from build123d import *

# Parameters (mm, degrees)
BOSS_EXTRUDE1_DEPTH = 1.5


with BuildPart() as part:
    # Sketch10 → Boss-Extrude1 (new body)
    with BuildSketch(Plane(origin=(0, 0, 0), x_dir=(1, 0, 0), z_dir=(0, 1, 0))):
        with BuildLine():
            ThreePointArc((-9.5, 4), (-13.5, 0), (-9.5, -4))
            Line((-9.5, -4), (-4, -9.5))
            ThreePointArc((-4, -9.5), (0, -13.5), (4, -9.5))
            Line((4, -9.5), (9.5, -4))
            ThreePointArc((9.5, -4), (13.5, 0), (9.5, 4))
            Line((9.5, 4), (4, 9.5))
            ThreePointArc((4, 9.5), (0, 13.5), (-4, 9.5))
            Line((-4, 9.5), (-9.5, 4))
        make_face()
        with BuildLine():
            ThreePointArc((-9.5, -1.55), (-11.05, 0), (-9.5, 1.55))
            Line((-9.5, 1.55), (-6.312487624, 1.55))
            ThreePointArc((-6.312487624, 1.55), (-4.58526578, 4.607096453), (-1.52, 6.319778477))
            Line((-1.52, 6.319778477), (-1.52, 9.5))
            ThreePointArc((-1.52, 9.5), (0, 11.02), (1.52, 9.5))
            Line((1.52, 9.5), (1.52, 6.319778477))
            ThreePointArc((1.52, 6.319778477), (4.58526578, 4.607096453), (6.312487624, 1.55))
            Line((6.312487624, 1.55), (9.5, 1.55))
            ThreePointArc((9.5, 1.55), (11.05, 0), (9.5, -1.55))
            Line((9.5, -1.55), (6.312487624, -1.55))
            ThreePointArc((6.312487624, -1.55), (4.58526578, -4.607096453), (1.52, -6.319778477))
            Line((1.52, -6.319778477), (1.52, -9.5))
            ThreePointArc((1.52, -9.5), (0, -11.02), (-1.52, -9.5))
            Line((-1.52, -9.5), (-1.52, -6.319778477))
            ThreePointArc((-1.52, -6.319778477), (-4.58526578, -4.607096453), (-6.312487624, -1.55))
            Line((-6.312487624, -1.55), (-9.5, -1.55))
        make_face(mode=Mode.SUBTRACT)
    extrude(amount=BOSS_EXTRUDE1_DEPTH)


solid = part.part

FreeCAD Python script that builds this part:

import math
import FreeCAD as App
import Part
import Sketcher
Q = App.Units.Quantity

doc = App.newDocument("Part")
body = doc.addObject("PartDesign::Body", "Body")

sketch1 = body.newObject("Sketcher::SketchObject", "Sketch")
sketch1.AttachmentSupport = (doc.getObject("XZ_Plane"), [""])
sketch1.MapMode = "FlatFace"
sketch1.addGeometry([
    Part.ArcOfCircle(Part.Circle(App.Vector(-9.5, 0, 0), App.Vector(0, 0, 1), 4), math.radians(90), math.radians(270)),
    Part.LineSegment(App.Vector(-9.5, 4, 0), App.Vector(-4, 9.5, 0)),
    Part.ArcOfCircle(Part.Circle(App.Vector(0, 9.5, 0), App.Vector(0, 0, 1), 4), math.radians(0), math.radians(180)),
    Part.LineSegment(App.Vector(4, 9.5, 0), App.Vector(9.5, 4, 0)),
    Part.ArcOfCircle(Part.Circle(App.Vector(9.5, 0, 0), App.Vector(0, 0, 1), 4), math.radians(-90), math.radians(90)),
    Part.LineSegment(App.Vector(9.5, -4, 0), App.Vector(4, -9.5, 0)),
    Part.ArcOfCircle(Part.Circle(App.Vector(0, -9.5, 0), App.Vector(0, 0, 1), 4), math.radians(180), math.radians(360)),
    Part.LineSegment(App.Vector(-4, -9.5, 0), App.Vector(-9.5, -4, 0)),
    Part.LineSegment(App.Vector(-6.3, 1.6, 0), App.Vector(-9.5, 1.6, 0)),
    Part.ArcOfCircle(Part.Circle(App.Vector(-9.5, 0, 0), App.Vector(0, 0, 1), 1.6), math.radians(90), math.radians(270)),
    Part.LineSegment(App.Vector(-9.5, -1.6, 0), App.Vector(-6.3, -1.6, 0)),
    Part.ArcOfCircle(Part.Circle(App.Vector(0, 0, 0), App.Vector(0, 0, 1), 6.5), math.radians(-166), math.radians(-104)),
    Part.LineSegment(App.Vector(-1.5, -6.3, 0), App.Vector(-1.5, -9.5, 0)),
    Part.ArcOfCircle(Part.Circle(App.Vector(0, -9.5, 0), App.Vector(0, 0, 1), 1.5), math.radians(180), math.radians(360)),
    Part.LineSegment(App.Vector(1.5, -9.5, 0), App.Vector(1.5, -6.3, 0)),
    Part.ArcOfCircle(Part.Circle(App.Vector(0, 0, 0), App.Vector(0, 0, 1), 6.5), math.radians(-76), math.radians(-14)),
    Part.LineSegment(App.Vector(6.3, -1.6, 0), App.Vector(9.5, -1.6, 0)),
    Part.ArcOfCircle(Part.Circle(App.Vector(9.5, 0, 0), App.Vector(0, 0, 1), 1.6), math.radians(-90), math.radians(90)),
    Part.LineSegment(App.Vector(9.5, 1.6, 0), App.Vector(6.3, 1.6, 0)),
    Part.ArcOfCircle(Part.Circle(App.Vector(0, 0, 0), App.Vector(0, 0, 1), 6.5), math.radians(14), math.radians(76)),
    Part.LineSegment(App.Vector(1.5, 6.3, 0), App.Vector(1.5, 9.5, 0)),
    Part.ArcOfCircle(Part.Circle(App.Vector(0, 9.5, 0), App.Vector(0, 0, 1), 1.5), math.radians(0), math.radians(180)),
    Part.LineSegment(App.Vector(-1.5, 9.5, 0), App.Vector(-1.5, 6.3, 0)),
    Part.ArcOfCircle(Part.Circle(App.Vector(0, 0, 0), App.Vector(0, 0, 1), 6.5), math.radians(104), math.radians(166)),
], False)
sketch1.addConstraint([
    Sketcher.Constraint("Coincident", 0, 1, 1, 1),
    Sketcher.Constraint("Coincident", 1, 2, 2, 2),
    Sketcher.Constraint("Coincident", 2, 1, 3, 1),
    Sketcher.Constraint("Coincident", 3, 2, 4, 2),
    Sketcher.Constraint("Coincident", 4, 1, 5, 1),
    Sketcher.Constraint("Coincident", 5, 2, 6, 2),
    Sketcher.Constraint("Coincident", 6, 1, 7, 1),
    Sketcher.Constraint("Coincident", 7, 2, 0, 2),
    Sketcher.Constraint("Tangent", 8, 2, 9, 1),
    Sketcher.Constraint("Tangent", 9, 2, 10, 1),
    Sketcher.Constraint("Coincident", 10, 2, 11, 1),
    Sketcher.Constraint("Coincident", 11, 2, 12, 1),
    Sketcher.Constraint("Tangent", 12, 2, 13, 1),
    Sketcher.Constraint("Tangent", 13, 2, 14, 1),
    Sketcher.Constraint("Coincident", 14, 2, 15, 1),
    Sketcher.Constraint("Coincident", 15, 2, 16, 1),
    Sketcher.Constraint("Tangent", 16, 2, 17, 1),
    Sketcher.Constraint("Tangent", 17, 2, 18, 1),
    Sketcher.Constraint("Coincident", 18, 2, 19, 1),
    Sketcher.Constraint("Coincident", 19, 2, 20, 1),
    Sketcher.Constraint("Tangent", 20, 2, 21, 1),
    Sketcher.Constraint("Tangent", 21, 2, 22, 1),
    Sketcher.Constraint("Coincident", 22, 2, 23, 1),
    Sketcher.Constraint("Coincident", 23, 2, 8, 1),
    Sketcher.Constraint("Horizontal", 8),
    Sketcher.Constraint("Horizontal", 10),
    Sketcher.Constraint("Vertical", 12),
    Sketcher.Constraint("Vertical", 14),
    Sketcher.Constraint("Horizontal", 16),
    Sketcher.Constraint("Horizontal", 18),
    Sketcher.Constraint("Vertical", 20),
    Sketcher.Constraint("Vertical", 22),
    Sketcher.Constraint("Coincident", 11, 3, -1, 1),
    Sketcher.Constraint("Coincident", 15, 3, -1, 1),
    Sketcher.Constraint("Coincident", 19, 3, -1, 1),
    Sketcher.Constraint("Coincident", 23, 3, -1, 1),
    Sketcher.Constraint("Coincident", 9, 3, 0, 3),
    Sketcher.Constraint("Coincident", 13, 3, 6, 3),
    Sketcher.Constraint("Coincident", 17, 3, 4, 3),
    Sketcher.Constraint("Coincident", 21, 3, 2, 3),
    Sketcher.Constraint("Equal", 0, 2),
    Sketcher.Constraint("Equal", 2, 4),
    Sketcher.Constraint("Equal", 4, 6),
    Sketcher.Constraint("Equal", 11, 15),
    Sketcher.Constraint("Equal", 9, 17),
    Sketcher.Constraint("Equal", 15, 19),
    Sketcher.Constraint("Equal", 13, 21),
    Sketcher.Constraint("Equal", 19, 23),
    Sketcher.Constraint("Symmetric", 0, 3, 4, 3, -1, 1),
    Sketcher.Constraint("Symmetric", 2, 3, 6, 3, -1, 1),
    Sketcher.Constraint("Symmetric", 1, 2, 2, 1, -2),
    Sketcher.Constraint("Symmetric", 0, 1, 3, 2, -2),
    Sketcher.Constraint("Perpendicular", 1, 3),
    Sketcher.Constraint("Perpendicular", 3, 5),
    Sketcher.Constraint("Perpendicular", 5, 7),
    Sketcher.Constraint("Horizontal", 21, 3, 1, 2),
    Sketcher.Constraint("Horizontal", 13, 3, 5, 2),
    Sketcher.Constraint("Horizontal", 5, 2, 6, 1),
    Sketcher.Constraint("Vertical", 9, 3, 0, 1),
    Sketcher.Constraint("Radius", 0, Q("4 mm")),
    Sketcher.Constraint("Radius", 11, Q("6.5 mm")),
    Sketcher.Constraint("Radius", 9, Q("1.55 mm")),
    Sketcher.Constraint("Radius", 13, Q("1.52 mm")),
    Sketcher.Constraint("DistanceX", 0, 3, 4, 3, Q("19 mm")),
])
pad1 = body.newObject("PartDesign::Pad", "Pad")
pad1.Profile = sketch1
pad1.Length = 1.5
pad1.Reversed = True

doc.recompute()
